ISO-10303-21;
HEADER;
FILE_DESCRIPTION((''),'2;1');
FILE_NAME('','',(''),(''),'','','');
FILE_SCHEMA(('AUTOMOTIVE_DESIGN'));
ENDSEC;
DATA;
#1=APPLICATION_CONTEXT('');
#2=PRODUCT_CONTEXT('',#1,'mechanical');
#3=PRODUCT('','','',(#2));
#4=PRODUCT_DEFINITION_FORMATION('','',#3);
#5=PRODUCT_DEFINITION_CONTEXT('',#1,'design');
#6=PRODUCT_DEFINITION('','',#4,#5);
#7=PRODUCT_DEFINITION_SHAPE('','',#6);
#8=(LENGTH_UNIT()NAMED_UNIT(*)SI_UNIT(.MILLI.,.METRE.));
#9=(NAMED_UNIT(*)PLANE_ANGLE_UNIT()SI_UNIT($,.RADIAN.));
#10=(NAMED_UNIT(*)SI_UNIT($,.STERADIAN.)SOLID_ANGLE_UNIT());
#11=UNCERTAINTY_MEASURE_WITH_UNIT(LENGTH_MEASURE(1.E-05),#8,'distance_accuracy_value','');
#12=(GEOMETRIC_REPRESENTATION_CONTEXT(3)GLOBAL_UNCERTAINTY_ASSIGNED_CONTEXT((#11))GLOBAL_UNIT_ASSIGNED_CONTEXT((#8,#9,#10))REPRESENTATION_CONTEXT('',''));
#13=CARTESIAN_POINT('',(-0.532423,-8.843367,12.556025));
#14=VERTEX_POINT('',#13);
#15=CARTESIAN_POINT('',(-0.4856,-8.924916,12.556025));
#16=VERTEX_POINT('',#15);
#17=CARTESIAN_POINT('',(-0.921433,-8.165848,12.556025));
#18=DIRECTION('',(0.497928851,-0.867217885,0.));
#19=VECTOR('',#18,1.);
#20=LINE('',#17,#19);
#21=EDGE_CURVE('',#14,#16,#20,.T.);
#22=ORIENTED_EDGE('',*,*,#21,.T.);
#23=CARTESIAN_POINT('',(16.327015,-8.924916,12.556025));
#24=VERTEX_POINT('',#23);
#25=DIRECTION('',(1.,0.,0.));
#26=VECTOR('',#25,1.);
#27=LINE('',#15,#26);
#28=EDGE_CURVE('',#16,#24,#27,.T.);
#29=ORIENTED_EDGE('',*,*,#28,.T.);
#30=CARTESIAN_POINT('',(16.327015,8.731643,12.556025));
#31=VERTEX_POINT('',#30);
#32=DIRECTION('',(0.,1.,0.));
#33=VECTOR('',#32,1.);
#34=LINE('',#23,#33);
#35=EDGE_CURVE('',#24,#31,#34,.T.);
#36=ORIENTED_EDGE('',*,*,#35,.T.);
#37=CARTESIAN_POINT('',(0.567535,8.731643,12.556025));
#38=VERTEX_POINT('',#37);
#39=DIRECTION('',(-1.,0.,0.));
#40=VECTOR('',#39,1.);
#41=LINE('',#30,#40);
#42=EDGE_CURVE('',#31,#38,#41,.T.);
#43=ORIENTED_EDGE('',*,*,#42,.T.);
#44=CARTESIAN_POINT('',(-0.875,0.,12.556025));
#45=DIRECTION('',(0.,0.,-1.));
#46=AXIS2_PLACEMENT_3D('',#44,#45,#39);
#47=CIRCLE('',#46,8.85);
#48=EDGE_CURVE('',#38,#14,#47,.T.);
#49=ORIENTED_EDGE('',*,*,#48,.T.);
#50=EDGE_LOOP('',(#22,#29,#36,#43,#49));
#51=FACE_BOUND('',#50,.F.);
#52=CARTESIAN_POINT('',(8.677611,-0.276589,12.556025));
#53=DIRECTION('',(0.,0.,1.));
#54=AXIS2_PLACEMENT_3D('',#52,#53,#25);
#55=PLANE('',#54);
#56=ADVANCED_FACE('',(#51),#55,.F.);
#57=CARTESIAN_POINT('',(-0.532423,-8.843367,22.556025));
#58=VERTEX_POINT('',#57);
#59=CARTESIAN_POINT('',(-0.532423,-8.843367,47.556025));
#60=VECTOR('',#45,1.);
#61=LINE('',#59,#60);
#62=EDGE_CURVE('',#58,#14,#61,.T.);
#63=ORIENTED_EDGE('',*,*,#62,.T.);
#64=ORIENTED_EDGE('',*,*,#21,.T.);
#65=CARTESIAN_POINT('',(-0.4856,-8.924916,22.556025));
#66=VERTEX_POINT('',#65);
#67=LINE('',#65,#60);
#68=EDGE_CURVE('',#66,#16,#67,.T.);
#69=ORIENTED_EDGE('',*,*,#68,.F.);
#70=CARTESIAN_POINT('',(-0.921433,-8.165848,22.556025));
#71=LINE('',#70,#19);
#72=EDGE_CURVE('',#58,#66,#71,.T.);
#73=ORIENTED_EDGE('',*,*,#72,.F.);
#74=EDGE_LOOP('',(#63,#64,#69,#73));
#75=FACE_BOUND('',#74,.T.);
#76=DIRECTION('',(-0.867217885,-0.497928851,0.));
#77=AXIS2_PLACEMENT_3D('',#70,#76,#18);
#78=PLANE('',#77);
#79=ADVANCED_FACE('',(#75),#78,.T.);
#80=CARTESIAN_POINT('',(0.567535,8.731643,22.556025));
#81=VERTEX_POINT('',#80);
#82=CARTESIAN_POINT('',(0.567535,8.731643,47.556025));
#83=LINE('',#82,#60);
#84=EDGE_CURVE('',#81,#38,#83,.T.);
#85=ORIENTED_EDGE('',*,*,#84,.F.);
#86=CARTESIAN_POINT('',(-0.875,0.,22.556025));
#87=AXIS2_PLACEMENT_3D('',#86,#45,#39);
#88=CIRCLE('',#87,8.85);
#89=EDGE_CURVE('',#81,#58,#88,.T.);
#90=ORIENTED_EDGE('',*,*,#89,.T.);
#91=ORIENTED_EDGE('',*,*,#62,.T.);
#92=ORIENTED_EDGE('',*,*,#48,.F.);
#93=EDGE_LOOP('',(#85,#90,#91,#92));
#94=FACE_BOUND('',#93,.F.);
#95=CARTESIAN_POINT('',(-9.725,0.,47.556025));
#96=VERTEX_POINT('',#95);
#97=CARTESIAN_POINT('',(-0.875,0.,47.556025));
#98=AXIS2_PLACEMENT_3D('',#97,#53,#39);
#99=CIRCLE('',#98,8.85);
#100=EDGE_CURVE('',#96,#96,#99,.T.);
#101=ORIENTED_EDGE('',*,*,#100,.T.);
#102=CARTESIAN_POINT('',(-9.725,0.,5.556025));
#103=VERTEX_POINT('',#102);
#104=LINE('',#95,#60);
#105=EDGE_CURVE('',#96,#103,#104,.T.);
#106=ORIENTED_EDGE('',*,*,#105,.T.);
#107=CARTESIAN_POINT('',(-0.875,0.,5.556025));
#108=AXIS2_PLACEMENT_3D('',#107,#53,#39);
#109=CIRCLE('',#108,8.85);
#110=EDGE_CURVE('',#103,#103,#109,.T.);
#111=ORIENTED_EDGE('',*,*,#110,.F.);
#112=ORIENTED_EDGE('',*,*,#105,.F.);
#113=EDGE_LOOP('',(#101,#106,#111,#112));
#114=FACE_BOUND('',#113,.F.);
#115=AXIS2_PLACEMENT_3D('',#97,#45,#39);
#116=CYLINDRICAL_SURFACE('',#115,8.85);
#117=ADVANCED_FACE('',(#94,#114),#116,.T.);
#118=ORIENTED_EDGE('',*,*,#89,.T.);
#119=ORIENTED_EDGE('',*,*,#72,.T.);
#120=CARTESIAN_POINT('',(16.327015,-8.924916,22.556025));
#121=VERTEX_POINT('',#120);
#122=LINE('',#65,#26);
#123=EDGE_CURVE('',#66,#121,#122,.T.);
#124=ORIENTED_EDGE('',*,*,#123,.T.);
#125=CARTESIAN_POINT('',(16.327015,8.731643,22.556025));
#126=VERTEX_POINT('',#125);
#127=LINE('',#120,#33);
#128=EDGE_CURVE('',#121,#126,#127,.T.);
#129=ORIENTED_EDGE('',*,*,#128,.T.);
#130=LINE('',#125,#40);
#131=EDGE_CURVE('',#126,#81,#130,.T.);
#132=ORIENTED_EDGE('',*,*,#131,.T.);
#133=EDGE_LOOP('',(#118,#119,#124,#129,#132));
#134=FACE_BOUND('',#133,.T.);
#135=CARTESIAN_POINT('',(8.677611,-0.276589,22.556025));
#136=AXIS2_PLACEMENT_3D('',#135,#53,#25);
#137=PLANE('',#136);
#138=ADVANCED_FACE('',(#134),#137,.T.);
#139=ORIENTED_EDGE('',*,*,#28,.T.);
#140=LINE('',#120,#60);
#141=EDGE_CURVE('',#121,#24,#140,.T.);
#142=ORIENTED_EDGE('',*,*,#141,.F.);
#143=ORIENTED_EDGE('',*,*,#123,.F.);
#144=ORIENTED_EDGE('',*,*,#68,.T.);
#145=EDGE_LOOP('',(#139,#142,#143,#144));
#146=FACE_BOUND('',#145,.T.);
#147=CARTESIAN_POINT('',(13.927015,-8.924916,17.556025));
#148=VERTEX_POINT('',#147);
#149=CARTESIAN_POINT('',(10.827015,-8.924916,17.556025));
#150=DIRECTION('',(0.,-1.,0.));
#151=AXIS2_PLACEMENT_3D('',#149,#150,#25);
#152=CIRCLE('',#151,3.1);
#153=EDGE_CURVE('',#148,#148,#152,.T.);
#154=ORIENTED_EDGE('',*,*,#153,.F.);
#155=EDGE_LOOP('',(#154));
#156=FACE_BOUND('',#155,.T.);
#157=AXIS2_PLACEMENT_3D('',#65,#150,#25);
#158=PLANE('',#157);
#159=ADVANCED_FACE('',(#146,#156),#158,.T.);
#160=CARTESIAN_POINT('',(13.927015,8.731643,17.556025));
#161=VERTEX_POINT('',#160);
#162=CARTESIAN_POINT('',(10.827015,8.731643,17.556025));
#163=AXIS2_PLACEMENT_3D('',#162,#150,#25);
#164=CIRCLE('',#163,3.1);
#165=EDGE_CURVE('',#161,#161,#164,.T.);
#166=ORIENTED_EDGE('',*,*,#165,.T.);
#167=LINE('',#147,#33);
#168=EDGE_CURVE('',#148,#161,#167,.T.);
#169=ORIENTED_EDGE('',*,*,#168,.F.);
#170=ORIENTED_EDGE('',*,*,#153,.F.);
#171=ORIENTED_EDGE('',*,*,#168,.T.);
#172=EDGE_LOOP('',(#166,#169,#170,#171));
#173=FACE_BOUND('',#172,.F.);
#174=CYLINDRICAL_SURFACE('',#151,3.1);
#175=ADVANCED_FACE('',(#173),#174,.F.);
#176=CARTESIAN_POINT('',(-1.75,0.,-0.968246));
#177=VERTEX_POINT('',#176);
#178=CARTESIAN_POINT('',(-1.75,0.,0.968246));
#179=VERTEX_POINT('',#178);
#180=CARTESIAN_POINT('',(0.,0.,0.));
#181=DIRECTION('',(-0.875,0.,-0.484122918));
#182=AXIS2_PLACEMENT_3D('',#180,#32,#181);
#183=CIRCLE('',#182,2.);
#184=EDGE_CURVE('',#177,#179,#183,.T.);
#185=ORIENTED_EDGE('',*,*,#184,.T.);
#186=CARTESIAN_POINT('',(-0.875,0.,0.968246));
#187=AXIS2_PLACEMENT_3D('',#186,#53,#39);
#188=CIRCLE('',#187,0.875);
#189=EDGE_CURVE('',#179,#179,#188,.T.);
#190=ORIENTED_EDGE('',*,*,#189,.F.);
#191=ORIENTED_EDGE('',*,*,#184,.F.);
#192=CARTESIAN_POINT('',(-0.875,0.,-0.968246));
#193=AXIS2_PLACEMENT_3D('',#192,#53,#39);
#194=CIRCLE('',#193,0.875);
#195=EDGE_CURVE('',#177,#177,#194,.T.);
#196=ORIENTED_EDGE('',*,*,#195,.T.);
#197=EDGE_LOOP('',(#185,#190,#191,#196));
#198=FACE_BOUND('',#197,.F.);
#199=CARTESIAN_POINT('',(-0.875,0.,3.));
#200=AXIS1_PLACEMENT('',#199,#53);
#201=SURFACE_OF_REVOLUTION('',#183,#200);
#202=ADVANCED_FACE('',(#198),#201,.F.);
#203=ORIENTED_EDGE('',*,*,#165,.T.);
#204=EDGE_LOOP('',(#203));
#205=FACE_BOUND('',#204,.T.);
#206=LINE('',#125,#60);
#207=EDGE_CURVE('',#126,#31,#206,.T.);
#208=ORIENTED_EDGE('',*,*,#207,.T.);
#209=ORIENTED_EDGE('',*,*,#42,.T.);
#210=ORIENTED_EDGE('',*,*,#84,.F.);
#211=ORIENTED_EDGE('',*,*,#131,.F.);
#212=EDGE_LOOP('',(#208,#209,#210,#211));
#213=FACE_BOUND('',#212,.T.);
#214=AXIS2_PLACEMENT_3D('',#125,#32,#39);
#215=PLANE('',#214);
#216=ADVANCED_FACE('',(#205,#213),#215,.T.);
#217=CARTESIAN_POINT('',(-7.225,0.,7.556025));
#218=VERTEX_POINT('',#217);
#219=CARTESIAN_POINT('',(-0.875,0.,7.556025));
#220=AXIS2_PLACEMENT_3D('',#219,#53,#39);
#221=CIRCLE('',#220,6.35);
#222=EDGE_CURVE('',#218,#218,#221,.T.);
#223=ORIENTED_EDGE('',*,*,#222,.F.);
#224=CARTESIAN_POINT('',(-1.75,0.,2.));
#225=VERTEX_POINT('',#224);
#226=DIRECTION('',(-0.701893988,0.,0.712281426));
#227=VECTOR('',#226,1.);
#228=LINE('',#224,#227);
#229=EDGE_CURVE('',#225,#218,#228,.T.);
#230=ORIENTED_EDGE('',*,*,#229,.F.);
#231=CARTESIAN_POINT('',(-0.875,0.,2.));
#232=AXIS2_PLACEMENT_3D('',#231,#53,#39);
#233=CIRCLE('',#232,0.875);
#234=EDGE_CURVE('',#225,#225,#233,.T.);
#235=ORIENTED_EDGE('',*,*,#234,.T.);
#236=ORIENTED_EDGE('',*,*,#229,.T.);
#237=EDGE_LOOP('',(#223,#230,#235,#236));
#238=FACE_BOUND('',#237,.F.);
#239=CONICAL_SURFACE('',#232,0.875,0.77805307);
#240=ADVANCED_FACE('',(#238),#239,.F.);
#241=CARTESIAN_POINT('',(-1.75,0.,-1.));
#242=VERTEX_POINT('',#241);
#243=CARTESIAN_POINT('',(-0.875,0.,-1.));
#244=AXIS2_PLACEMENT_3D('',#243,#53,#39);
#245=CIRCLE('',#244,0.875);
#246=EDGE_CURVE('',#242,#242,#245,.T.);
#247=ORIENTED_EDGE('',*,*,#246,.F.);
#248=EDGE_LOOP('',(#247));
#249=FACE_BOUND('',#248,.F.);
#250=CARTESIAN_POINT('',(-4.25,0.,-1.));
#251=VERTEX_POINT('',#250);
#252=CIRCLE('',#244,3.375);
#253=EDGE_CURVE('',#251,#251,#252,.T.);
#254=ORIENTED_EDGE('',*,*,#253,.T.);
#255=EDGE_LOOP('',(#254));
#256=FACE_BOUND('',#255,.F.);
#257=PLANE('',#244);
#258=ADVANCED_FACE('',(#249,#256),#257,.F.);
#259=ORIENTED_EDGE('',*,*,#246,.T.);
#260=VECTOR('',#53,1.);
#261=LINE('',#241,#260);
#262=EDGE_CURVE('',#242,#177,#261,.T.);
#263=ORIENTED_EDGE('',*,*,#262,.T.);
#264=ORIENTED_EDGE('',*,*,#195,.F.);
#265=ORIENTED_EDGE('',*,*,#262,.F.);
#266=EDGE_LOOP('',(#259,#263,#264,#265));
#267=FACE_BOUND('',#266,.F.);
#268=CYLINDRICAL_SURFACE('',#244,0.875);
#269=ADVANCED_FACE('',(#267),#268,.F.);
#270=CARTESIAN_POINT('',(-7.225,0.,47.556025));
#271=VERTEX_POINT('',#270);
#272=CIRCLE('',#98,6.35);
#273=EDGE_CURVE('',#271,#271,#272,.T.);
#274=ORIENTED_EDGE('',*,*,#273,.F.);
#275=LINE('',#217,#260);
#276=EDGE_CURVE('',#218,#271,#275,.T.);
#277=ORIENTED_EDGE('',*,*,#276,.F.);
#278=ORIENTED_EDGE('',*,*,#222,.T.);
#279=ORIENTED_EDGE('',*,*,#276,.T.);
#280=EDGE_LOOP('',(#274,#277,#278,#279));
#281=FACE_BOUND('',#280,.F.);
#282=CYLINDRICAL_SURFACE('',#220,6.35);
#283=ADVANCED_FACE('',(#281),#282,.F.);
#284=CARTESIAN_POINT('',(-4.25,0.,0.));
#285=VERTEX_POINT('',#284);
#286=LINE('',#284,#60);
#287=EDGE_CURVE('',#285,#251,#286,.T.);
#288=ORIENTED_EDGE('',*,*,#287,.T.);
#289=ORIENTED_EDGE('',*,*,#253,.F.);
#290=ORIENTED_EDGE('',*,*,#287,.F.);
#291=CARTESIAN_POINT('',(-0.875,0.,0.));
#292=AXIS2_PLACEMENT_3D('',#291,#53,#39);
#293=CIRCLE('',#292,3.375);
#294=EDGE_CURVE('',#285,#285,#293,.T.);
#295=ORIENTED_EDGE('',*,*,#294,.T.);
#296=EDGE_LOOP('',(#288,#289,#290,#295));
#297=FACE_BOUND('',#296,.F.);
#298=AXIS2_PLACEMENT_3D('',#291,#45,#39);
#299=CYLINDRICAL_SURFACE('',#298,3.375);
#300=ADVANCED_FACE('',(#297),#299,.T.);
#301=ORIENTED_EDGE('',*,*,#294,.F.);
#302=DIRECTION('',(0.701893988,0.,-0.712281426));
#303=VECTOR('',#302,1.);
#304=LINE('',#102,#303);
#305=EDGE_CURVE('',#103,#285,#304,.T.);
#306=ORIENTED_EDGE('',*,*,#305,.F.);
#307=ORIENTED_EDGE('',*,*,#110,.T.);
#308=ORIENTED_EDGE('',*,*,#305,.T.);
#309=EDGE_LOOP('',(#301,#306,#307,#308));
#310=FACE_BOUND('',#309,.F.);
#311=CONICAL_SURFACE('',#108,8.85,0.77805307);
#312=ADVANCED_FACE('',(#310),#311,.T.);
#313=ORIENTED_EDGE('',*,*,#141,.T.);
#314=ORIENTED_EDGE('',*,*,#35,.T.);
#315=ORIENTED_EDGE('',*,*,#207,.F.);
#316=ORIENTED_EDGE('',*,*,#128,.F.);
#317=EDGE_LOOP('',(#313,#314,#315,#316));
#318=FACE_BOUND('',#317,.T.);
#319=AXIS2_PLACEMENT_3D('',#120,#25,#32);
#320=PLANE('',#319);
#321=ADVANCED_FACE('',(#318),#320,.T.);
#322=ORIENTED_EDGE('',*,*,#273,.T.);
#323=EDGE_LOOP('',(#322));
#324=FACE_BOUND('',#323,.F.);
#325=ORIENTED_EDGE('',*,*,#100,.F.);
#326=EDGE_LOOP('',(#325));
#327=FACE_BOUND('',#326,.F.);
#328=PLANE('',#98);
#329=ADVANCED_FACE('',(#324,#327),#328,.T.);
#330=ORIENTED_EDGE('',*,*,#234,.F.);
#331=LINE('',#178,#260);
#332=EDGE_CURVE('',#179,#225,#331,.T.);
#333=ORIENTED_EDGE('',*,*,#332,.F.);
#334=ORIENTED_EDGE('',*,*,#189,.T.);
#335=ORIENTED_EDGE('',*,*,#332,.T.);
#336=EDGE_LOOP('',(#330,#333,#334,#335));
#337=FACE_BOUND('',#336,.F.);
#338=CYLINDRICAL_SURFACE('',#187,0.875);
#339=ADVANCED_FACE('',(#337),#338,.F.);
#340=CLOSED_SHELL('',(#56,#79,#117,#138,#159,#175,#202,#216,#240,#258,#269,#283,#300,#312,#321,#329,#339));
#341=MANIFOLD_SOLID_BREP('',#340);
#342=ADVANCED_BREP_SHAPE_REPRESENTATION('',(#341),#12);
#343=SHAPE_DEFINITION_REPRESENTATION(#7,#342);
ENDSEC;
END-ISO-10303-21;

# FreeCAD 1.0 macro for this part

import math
import FreeCAD as App
import Part
import Sketcher

doc = App.newDocument("Part")
body = doc.addObject("PartDesign::Body", "Body")

# Sketch on XZ plane
sketch1 = body.newObject("Sketcher::SketchObject", "Sketch")
sketch1.AttachmentSupport = (doc.getObject("XZ_Plane"), [""])
sketch1.MapMode = "FlatFace"
sketch1.addGeometry(Part.LineSegment(App.Vector(-7.225, 7.556, 0), App.Vector(-7.225, 47.556, 0)), False)
sketch1.addGeometry(Part.LineSegment(App.Vector(-7.225, 47.556, 0), App.Vector(-9.725, 47.556, 0)), False)
sketch1.addGeometry(Part.LineSegment(App.Vector(-9.725, 47.556, 0), App.Vector(-9.725, 5.556, 0)), False)
sketch1.addGeometry(Part.LineSegment(App.Vector(-9.725, 5.556, 0), App.Vector(-4.25, 0, 0)), False)
sketch1.addGeometry(Part.LineSegment(App.Vector(-4.25, 0, 0), App.Vector(-4.25, -1, 0)), False)
sketch1.addGeometry(Part.LineSegment(App.Vector(-4.25, -1, 0), App.Vector(-1.75, -1, 0)), False)
sketch1.addGeometry(Part.LineSegment(App.Vector(-1.75, -1, 0), App.Vector(-1.75, -0.968, 0)), False)
sketch1.addGeometry(Part.ArcOfCircle(Part.Circle(App.Vector(0, 0, 0), App.Vector(0, 0, 1), 2), math.radians(151), math.radians(209)), False)
sketch1.addGeometry(Part.LineSegment(App.Vector(-1.75, 0.968, 0), App.Vector(-1.75, 2, 0)), False)
sketch1.addGeometry(Part.LineSegment(App.Vector(-1.75, 2, 0), App.Vector(-7.225, 7.556, 0)), False)
sketch1.addGeometry(Part.LineSegment(App.Vector(-0.875, -1, 0), App.Vector(-0.875, 47.556, 0)), True)  # axis
sketch1.addConstraint(Sketcher.Constraint("Coincident", 0, 2, 1, 1))
sketch1.addConstraint(Sketcher.Constraint("Coincident", 1, 2, 2, 1))
sketch1.addConstraint(Sketcher.Constraint("Coincident", 2, 2, 3, 1))
sketch1.addConstraint(Sketcher.Constraint("Coincident", 3, 2, 4, 1))
sketch1.addConstraint(Sketcher.Constraint("Coincident", 4, 2, 5, 1))
sketch1.addConstraint(Sketcher.Constraint("Coincident", 5, 2, 6, 1))
sketch1.addConstraint(Sketcher.Constraint("Coincident", 6, 2, 7, 2))
sketch1.addConstraint(Sketcher.Constraint("Coincident", 7, 1, 8, 1))
sketch1.addConstraint(Sketcher.Constraint("Coincident", 8, 2, 9, 1))
sketch1.addConstraint(Sketcher.Constraint("Coincident", 9, 2, 0, 1))
sketch1.addConstraint(Sketcher.Constraint("Vertical", 0))
sketch1.addConstraint(Sketcher.Constraint("Horizontal", 1))
sketch1.addConstraint(Sketcher.Constraint("Vertical", 2))
sketch1.addConstraint(Sketcher.Constraint("Vertical", 4))
sketch1.addConstraint(Sketcher.Constraint("Horizontal", 5))
sketch1.addConstraint(Sketcher.Constraint("Vertical", 6))
sketch1.addConstraint(Sketcher.Constraint("Vertical", 8))
sketch1.addConstraint(Sketcher.Constraint("Vertical", 10))
sketch1.addConstraint(Sketcher.Constraint("Coincident", 7, 3, -1, 1))
sketch1.addConstraint(Sketcher.Constraint("PointOnObject", 3, 2, -1))
sketch1.addConstraint(Sketcher.Constraint("Parallel", 3, 9))
sketch1.addConstraint(Sketcher.Constraint("Horizontal", 5, 2, 10, 1))
sketch1.addConstraint(Sketcher.Constraint("Horizontal", 1, 2, 10, 2))
sketch1.addConstraint(Sketcher.Constraint("Vertical", 6, 2, 7, 1))
sketch1.addConstraint(Sketcher.Constraint("Equal", 1, 5))
sketch1.addConstraint(Sketcher.Constraint("Radius", 7, 2.0))
sketch1.addConstraint(Sketcher.Constraint("DistanceY", 0, 1, 0, 2, 40.0))
sketch1.addConstraint(Sketcher.Constraint("DistanceY", 2, 2, 2, 1, 42.0))
sketch1.addConstraint(Sketcher.Constraint("DistanceY", 4, 2, 4, 1, 1.0))
sketch1.addConstraint(Sketcher.Constraint("DistanceX", 1, 2, 1, 1, 2.5))
sketch1.addConstraint(Sketcher.Constraint("DistanceX", 3, 2, -1, 1, 4.25))
sketch1.addConstraint(Sketcher.Constraint("DistanceX", 0, 2, 10, 2, 6.35))
sketch1.addConstraint(Sketcher.Constraint("DistanceX", 0, 2, -1, 1, 7.225))
sketch1.addConstraint(Sketcher.Constraint("DistanceY", 10, 1, 10, 2, 48.556025))
revolution = body.newObject("PartDesign::Revolution", "Revolution")
revolution.Profile = sketch1
revolution.ReferenceAxis = (sketch1, ["Axis0"])
revolution.Angle = 360

# Sketch on XY plane
sketch2 = body.newObject("Sketcher::SketchObject", "Sketch001")
sketch2.AttachmentSupport = (doc.getObject("XY_Plane"), [""])
sketch2.MapMode = "FlatFace"
sketch2.AttachmentOffset = App.Placement(App.Vector(0, 0, 22.556025), App.Rotation())
sketch2.addGeometry(Part.LineSegment(App.Vector(16.3, 8.7, 0), App.Vector(0.4, 8.7, 0)), False)
sketch2.addGeometry(Part.LineSegment(App.Vector(0.4, 8.7, 0), App.Vector(5.2, 5.6, 0)), False)
sketch2.addGeometry(Part.LineSegment(App.Vector(5.2, 5.6, 0), App.Vector(6.9, -0.9, 0)), False)
sketch2.addGeometry(Part.LineSegment(App.Vector(6.9, -0.9, 0), App.Vector(5.2, -4.4, 0)), False)
sketch2.addGeometry(Part.LineSegment(App.Vector(5.2, -4.4, 0), App.Vector(1.4, -7.4, 0)), False)
sketch2.addGeometry(Part.LineSegment(App.Vector(1.4, -7.4, 0), App.Vector(-0.9, -8.2, 0)), False)
sketch2.addGeometry(Part.LineSegment(App.Vector(-0.9, -8.2, 0), App.Vector(-0.5, -8.9, 0)), False)
sketch2.addGeometry(Part.LineSegment(App.Vector(-0.5, -8.9, 0), App.Vector(16.3, -8.9, 0)), False)
sketch2.addGeometry(Part.LineSegment(App.Vector(16.3, -8.9, 0), App.Vector(16.3, 8.7, 0)), False)
sketch2.addConstraint(Sketcher.Constraint("Coincident", 0, 2, 1, 1))
sketch2.addConstraint(Sketcher.Constraint("Coincident", 1, 2, 2, 1))
sketch2.addConstraint(Sketcher.Constraint("Coincident", 2, 2, 3, 1))
sketch2.addConstraint(Sketcher.Constraint("Coincident", 3, 2, 4, 1))
sketch2.addConstraint(Sketcher.Constraint("Coincident", 4, 2, 5, 1))
sketch2.addConstraint(Sketcher.Constraint("Coincident", 5, 2, 6, 1))
sketch2.addConstraint(Sketcher.Constraint("Coincident", 6, 2, 7, 1))
sketch2.addConstraint(Sketcher.Constraint("Coincident", 7, 2, 8, 1))
sketch2.addConstraint(Sketcher.Constraint("Coincident", 8, 2, 0, 1))
sketch2.addConstraint(Sketcher.Constraint("Horizontal", 0))
sketch2.addConstraint(Sketcher.Constraint("Horizontal", 7))
sketch2.addConstraint(Sketcher.Constraint("Vertical", 8))
sketch2.addConstraint(Sketcher.Constraint("DistanceX", 0, 2, 0, 1, 15.975))
sketch2.addConstraint(Sketcher.Constraint("DistanceY", 8, 1, 8, 2, 17.656559))
sketch2.addConstraint(Sketcher.Constraint("DistanceY", 3, 2, -1, 1, 4.384602))
sketch2.addConstraint(Sketcher.Constraint("DistanceY", 4, 2, -1, 1, 7.409599))
sketch2.addConstraint(Sketcher.Constraint("DistanceX", 6, 2, -1, 1, 0.4856))
sketch2.addConstraint(Sketcher.Constraint("DistanceY", 5, 2, 2, 2, 7.278899))
sketch2.addConstraint(Sketcher.Constraint("Distance", 1, 5.757509))
sketch2.addConstraint(Sketcher.Constraint("Distance", 6, 0.875291))
sketch2.addConstraint(Sketcher.Constraint("DistanceX", 7, 1, 7, 2, 16.812616))
sketch2.addConstraint(Sketcher.Constraint("DistanceY", 2, 2, -1, 1, 0.886949))
sketch2.addConstraint(Sketcher.Constraint("DistanceX", -1, 1, 4, 2, 1.39458))
sketch2.addConstraint(Sketcher.Constraint("DistanceX", 0, 2, 1, 2, 4.823811))
sketch2.addConstraint(Sketcher.Constraint("DistanceX", 1, 2, 2, 2, 1.70156))
sketch2.addConstraint(Sketcher.Constraint("DistanceX", 4, 2, 3, 2, 3.828512))
sketch2.addConstraint(Sketcher.Constraint("DistanceY", 4, 2, 0, 2, 16.141242))
pad1 = body.newObject("PartDesign::Pad", "Pad")
pad1.Profile = sketch2
pad1.Length = 10
pad1.Reversed = True

# Sketch on XZ plane
sketch3 = body.newObject("Sketcher::SketchObject", "Sketch002")
sketch3.AttachmentSupport = (doc.getObject("XZ_Plane"), [""])
sketch3.MapMode = "FlatFace"
sketch3.AttachmentOffset = App.Placement(App.Vector(0, 0, 8.924916), App.Rotation())
sketch3.addGeometry(Part.Circle(App.Vector(10.8, 17.6, 0), App.Vector(0, 0, 1), 3.1), False)
sketch3.addConstraint(Sketcher.Constraint("Diameter", 0, 6.2))
sketch3.addConstraint(Sketcher.Constraint("DistanceX", -1, 1, 0, 3, 10.827015))
sketch3.addConstraint(Sketcher.Constraint("DistanceY", -1, 1, 0, 3, 17.556025))
pocket1 = body.newObject("PartDesign::Pocket", "Pocket")
pocket1.Profile = sketch3
pocket1.Length = 25

doc.recompute()
